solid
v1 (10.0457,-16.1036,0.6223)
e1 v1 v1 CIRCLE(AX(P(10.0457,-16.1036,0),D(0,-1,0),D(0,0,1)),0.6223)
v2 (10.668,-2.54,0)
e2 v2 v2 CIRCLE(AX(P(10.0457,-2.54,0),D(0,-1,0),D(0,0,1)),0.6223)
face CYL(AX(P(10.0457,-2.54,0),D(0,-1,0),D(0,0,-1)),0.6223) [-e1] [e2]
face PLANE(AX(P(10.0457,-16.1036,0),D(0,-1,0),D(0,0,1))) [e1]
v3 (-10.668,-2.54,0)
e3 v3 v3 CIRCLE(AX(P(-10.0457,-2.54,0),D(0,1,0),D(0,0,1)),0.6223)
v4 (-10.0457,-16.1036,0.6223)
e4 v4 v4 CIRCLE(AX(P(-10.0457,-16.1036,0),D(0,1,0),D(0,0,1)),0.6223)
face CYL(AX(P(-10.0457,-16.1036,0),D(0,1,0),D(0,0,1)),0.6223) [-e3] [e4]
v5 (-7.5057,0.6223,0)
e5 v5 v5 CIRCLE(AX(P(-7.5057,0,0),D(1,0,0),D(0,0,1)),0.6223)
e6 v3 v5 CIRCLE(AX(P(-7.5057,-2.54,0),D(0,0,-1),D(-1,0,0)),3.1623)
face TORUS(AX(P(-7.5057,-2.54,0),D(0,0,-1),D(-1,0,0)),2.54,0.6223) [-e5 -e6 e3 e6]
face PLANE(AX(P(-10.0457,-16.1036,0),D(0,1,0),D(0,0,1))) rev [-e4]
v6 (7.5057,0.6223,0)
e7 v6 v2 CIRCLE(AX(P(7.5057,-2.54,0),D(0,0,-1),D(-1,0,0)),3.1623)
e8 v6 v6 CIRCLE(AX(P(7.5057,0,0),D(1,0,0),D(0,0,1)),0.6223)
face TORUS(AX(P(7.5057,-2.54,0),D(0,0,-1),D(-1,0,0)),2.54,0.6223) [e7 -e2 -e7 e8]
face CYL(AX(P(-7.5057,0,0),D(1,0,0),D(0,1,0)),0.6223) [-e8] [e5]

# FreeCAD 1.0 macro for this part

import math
import FreeCAD as App
import Part
import Sketcher
from FreeCAD import Vector
Q = App.Units.Quantity

doc = App.newDocument("Part")
body = doc.addObject("PartDesign::Body", "Body")

# Sketch on XZ plane
sketch1 = body.newObject("Sketcher::SketchObject", "Sketch")
sketch1.AttachmentSupport = (doc.getObject("XZ_Plane"), [""])
sketch1.MapMode = "FlatFace"
sketch1.AttachmentOffset = App.Placement(Vector(0, 0, 0.634 * 25.4), App.Rotation())
sketch1.addGeometry(Part.Circle(Vector(-10, 0, 0), Vector(0, 0, 1), 0.6), False)
sketch1.addConstraint([
    Sketcher.Constraint("PointOnObject", 0, 3, -1),
    Sketcher.Constraint("Diameter", 0, Q("0.049 in")),
    Sketcher.Constraint("DistanceX", 0, 3, -1, 1, Q("0.3955 in")),
])

# Sketch on XY plane
sketch2 = body.newObject("Sketcher::SketchObject", "Sketch001")
sketch2.AttachmentSupport = (doc.getObject("XY_Plane"), [""])
sketch2.MapMode = "FlatFace"
sketch2.addGeometry([
    Part.LineSegment(Vector(-10, -16.1, 0), Vector(-10, -2.5, 0)),  # 0
    Part.ArcOfCircle(Part.Circle(Vector(-7.5, -2.5, 0), Vector(0, 0, 1), 2.5), math.radians(90), math.radians(180)),  # 1
    Part.LineSegment(Vector(-7.5, 0, 0), Vector(7.5, 0, 0)),  # 2
    Part.ArcOfCircle(Part.Circle(Vector(7.5, -2.5, 0), Vector(0, 0, 1), 2.5), math.radians(0), math.radians(90)),  # 3
    Part.LineSegment(Vector(10, -2.5, 0), Vector(10, -16.1, 0)),  # 4
], False)
sketch2.addConstraint([
    Sketcher.Constraint("Tangent", 0, 2, 1, 2),
    Sketcher.Constraint("Tangent", 1, 1, 2, 1),
    Sketcher.Constraint("Tangent", 2, 2, 3, 2),
    Sketcher.Constraint("Tangent", 3, 1, 4, 1),
    Sketcher.Constraint("Vertical", 0),
    Sketcher.Constraint("Horizontal", 2),
    Sketcher.Constraint("Vertical", 4),
    Sketcher.Constraint("Equal", 1, 3),
    Sketcher.Constraint("Symmetric", 1, 1, 2, 2, -1, 1),
    Sketcher.Constraint("Horizontal", 0, 1, 4, 2),
    Sketcher.Constraint("Radius", 1, Q("0.1 in")),
    Sketcher.Constraint("DistanceX", 2, 1, 2, 2, Q("0.591 in")),
    Sketcher.Constraint("DistanceY", 0, 1, 0, 2, Q("0.534 in")),
])
doc.recompute()

additivepipe = body.newObject("PartDesign::AdditivePipe", "AdditivePipe")
additivepipe.Profile = sketch1
additivepipe.Spine = (sketch2, ["Edge1", "Edge2", "Edge3", "Edge4", "Edge5"])

doc.recompute()
